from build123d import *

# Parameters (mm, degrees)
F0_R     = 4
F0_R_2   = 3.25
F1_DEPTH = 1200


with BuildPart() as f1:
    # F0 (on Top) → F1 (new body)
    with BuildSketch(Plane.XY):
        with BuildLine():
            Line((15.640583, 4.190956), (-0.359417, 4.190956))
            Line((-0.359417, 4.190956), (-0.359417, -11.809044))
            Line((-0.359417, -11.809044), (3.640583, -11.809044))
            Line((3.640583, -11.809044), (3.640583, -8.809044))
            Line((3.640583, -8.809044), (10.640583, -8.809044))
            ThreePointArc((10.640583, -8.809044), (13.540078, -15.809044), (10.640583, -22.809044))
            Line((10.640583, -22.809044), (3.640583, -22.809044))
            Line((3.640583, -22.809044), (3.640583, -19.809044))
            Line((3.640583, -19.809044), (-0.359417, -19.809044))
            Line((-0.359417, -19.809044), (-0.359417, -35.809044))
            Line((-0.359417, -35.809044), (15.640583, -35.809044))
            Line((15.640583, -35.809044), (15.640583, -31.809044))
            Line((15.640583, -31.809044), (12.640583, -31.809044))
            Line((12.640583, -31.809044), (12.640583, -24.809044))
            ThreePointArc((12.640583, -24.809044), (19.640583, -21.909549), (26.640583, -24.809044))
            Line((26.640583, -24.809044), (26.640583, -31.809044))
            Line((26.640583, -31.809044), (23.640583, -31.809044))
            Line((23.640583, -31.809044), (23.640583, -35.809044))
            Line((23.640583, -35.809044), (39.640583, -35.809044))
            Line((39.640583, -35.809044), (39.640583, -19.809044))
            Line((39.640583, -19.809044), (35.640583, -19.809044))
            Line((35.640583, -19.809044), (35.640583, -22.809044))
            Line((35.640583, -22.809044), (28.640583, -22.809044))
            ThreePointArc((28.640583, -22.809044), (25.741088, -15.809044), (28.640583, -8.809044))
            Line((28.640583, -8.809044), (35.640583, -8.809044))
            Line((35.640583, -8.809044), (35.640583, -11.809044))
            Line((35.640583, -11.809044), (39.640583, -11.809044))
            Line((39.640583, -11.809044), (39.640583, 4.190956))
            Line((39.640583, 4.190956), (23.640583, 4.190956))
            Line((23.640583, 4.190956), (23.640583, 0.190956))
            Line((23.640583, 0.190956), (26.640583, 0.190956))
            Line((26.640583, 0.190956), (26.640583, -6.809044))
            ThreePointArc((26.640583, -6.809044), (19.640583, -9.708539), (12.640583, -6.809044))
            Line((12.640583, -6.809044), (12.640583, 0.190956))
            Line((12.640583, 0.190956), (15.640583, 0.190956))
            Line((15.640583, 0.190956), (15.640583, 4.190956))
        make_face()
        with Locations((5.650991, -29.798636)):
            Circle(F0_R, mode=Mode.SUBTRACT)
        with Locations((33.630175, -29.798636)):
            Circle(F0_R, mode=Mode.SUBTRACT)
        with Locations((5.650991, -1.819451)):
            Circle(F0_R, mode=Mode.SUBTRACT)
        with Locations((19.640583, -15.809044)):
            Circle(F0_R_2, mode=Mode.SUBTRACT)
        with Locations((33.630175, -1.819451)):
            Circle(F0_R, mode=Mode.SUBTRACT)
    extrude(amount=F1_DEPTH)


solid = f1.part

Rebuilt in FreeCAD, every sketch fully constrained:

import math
import FreeCAD as App
import Part
import Sketcher
Q = App.Units.Quantity

doc = App.newDocument("Part")
params = doc.addObject("Spreadsheet::Sheet", "Params")
for row, (alias, value) in enumerate([
    ("sketch1_diameter", "8 mm"),
    ("sketch1_diameter2", "6.5 mm"),
    ("sketch1_width", "16 mm"),
    ("sketch1_width2", "4 mm"),
    ("sketch1_width3", "7 mm"),
    ("pad1_length", "1200 mm"),
], start=1):
    params.set(f"A{row}", alias)
    params.set(f"B{row}", "=" + value)
    params.setAlias(f"B{row}", alias)

body = doc.addObject("PartDesign::Body", "Body")

sketch1 = doc.addObject("Sketcher::SketchObject", "Sketch")
body.addObject(sketch1)
sketch1.AttachmentSupport = (doc.XY_Plane, [""])
sketch1.MapMode = "FlatFace"
sketch1.addGeometry(Part.LineSegment(App.Vector(15.6, 4.2, 0), App.Vector(-0.4, 4.2, 0)), False)
sketch1.addGeometry(Part.LineSegment(App.Vector(-0.4, 4.2, 0), App.Vector(-0.4, -11.8, 0)), False)
sketch1.addGeometry(Part.LineSegment(App.Vector(-0.4, -11.8, 0), App.Vector(3.6, -11.8, 0)), False)
sketch1.addGeometry(Part.LineSegment(App.Vector(3.6, -11.8, 0), App.Vector(3.6, -8.8, 0)), False)
sketch1.addGeometry(Part.LineSegment(App.Vector(3.6, -8.8, 0), App.Vector(10.6, -8.8, 0)), False)
sketch1.addGeometry(Part.ArcOfCircle(Part.Circle(App.Vector(3.6, -15.8, 0), App.Vector(0, 0, 1), 9.9), math.radians(-45), math.radians(45)), False)
sketch1.addGeometry(Part.LineSegment(App.Vector(10.6, -22.8, 0), App.Vector(3.6, -22.8, 0)), False)
sketch1.addGeometry(Part.LineSegment(App.Vector(3.6, -22.8, 0), App.Vector(3.6, -19.8, 0)), False)
sketch1.addGeometry(Part.LineSegment(App.Vector(3.6, -19.8, 0), App.Vector(-0.4, -19.8, 0)), False)
sketch1.addGeometry(Part.LineSegment(App.Vector(-0.4, -19.8, 0), App.Vector(-0.4, -35.8, 0)), False)
sketch1.addGeometry(Part.LineSegment(App.Vector(-0.4, -35.8, 0), App.Vector(15.6, -35.8, 0)), False)
sketch1.addGeometry(Part.LineSegment(App.Vector(15.6, -35.8, 0), App.Vector(15.6, -31.8, 0)), False)
sketch1.addGeometry(Part.LineSegment(App.Vector(15.6, -31.8, 0), App.Vector(12.6, -31.8, 0)), False)
sketch1.addGeometry(Part.LineSegment(App.Vector(12.6, -31.8, 0), App.Vector(12.6, -24.8, 0)), False)
sketch1.addGeometry(Part.ArcOfCircle(Part.Circle(App.Vector(19.6, -31.8, 0), App.Vector(0, 0, 1), 9.9), math.radians(45), math.radians(135)), False)
sketch1.addGeometry(Part.LineSegment(App.Vector(26.6, -24.8, 0), App.Vector(26.6, -31.8, 0)), False)
sketch1.addGeometry(Part.LineSegment(App.Vector(26.6, -31.8, 0), App.Vector(23.6, -31.8, 0)), False)
sketch1.addGeometry(Part.LineSegment(App.Vector(23.6, -31.8, 0), App.Vector(23.6, -35.8, 0)), False)
sketch1.addGeometry(Part.LineSegment(App.Vector(23.6, -35.8, 0), App.Vector(39.6, -35.8, 0)), False)
sketch1.addGeometry(Part.LineSegment(App.Vector(39.6, -35.8, 0), App.Vector(39.6, -19.8, 0)), False)
sketch1.addGeometry(Part.LineSegment(App.Vector(39.6, -19.8, 0), App.Vector(35.6, -19.8, 0)), False)
sketch1.addGeometry(Part.LineSegment(App.Vector(35.6, -19.8, 0), App.Vector(35.6, -22.8, 0)), False)
sketch1.addGeometry(Part.LineSegment(App.Vector(35.6, -22.8, 0), App.Vector(28.6, -22.8, 0)), False)
sketch1.addGeometry(Part.ArcOfCircle(Part.Circle(App.Vector(35.6, -15.8, 0), App.Vector(0, 0, 1), 9.9), math.radians(135), math.radians(225)), False)
sketch1.addGeometry(Part.LineSegment(App.Vector(28.6, -8.8, 0), App.Vector(35.6, -8.8, 0)), False)
sketch1.addGeometry(Part.LineSegment(App.Vector(35.6, -8.8, 0), App.Vector(35.6, -11.8, 0)), False)
sketch1.addGeometry(Part.LineSegment(App.Vector(35.6, -11.8, 0), App.Vector(39.6, -11.8, 0)), False)
sketch1.addGeometry(Part.LineSegment(App.Vector(39.6, -11.8, 0), App.Vector(39.6, 4.2, 0)), False)
sketch1.addGeometry(Part.LineSegment(App.Vector(39.6, 4.2, 0), App.Vector(23.6, 4.2, 0)), False)
sketch1.addGeometry(Part.LineSegment(App.Vector(23.6, 4.2, 0), App.Vector(23.6, 0.2, 0)), False)
sketch1.addGeometry(Part.LineSegment(App.Vector(23.6, 0.2, 0), App.Vector(26.6, 0.2, 0)), False)
sketch1.addGeometry(Part.LineSegment(App.Vector(26.6, 0.2, 0), App.Vector(26.6, -6.8, 0)), False)
sketch1.addGeometry(Part.ArcOfCircle(Part.Circle(App.Vector(19.6, 0.2, 0), App.Vector(0, 0, 1), 9.9), math.radians(-135), math.radians(-45)), False)
sketch1.addGeometry(Part.LineSegment(App.Vector(12.6, -6.8, 0), App.Vector(12.6, 0.2, 0)), False)
sketch1.addGeometry(Part.LineSegment(App.Vector(12.6, 0.2, 0), App.Vector(15.6, 0.2, 0)), False)
sketch1.addGeometry(Part.LineSegment(App.Vector(15.6, 0.2, 0), App.Vector(15.6, 4.2, 0)), False)
sketch1.addGeometry(Part.Circle(App.Vector(5.7, -29.8, 0), App.Vector(0, 0, 1), 4), False)
sketch1.addGeometry(Part.Circle(App.Vector(19.6, -15.8, 0), App.Vector(0, 0, 1), 3.2), False)
sketch1.addGeometry(Part.Circle(App.Vector(33.6, -29.8, 0), App.Vector(0, 0, 1), 4), False)
sketch1.addGeometry(Part.Circle(App.Vector(5.7, -1.8, 0), App.Vector(0, 0, 1), 4), False)
sketch1.addGeometry(Part.Circle(App.Vector(33.6, -1.8, 0), App.Vector(0, 0, 1), 4), False)
sketch1.addConstraint(Sketcher.Constraint("Coincident", 0, 2, 1, 1))
sketch1.addConstraint(Sketcher.Constraint("Coincident", 1, 2, 2, 1))
sketch1.addConstraint(Sketcher.Constraint("Coincident", 2, 2, 3, 1))
sketch1.addConstraint(Sketcher.Constraint("Coincident", 3, 2, 4, 1))
sketch1.addConstraint(Sketcher.Constraint("Coincident", 4, 2, 5, 2))
sketch1.addConstraint(Sketcher.Constraint("Coincident", 5, 1, 6, 1))
sketch1.addConstraint(Sketcher.Constraint("Coincident", 6, 2, 7, 1))
sketch1.addConstraint(Sketcher.Constraint("Coincident", 7, 2, 8, 1))
sketch1.addConstraint(Sketcher.Constraint("Coincident", 8, 2, 9, 1))
sketch1.addConstraint(Sketcher.Constraint("Coincident", 9, 2, 10, 1))
sketch1.addConstraint(Sketcher.Constraint("Coincident", 10, 2, 11, 1))
sketch1.addConstraint(Sketcher.Constraint("Coincident", 11, 2, 12, 1))
sketch1.addConstraint(Sketcher.Constraint("Coincident", 12, 2, 13, 1))
sketch1.addConstraint(Sketcher.Constraint("Coincident", 13, 2, 14, 2))
sketch1.addConstraint(Sketcher.Constraint("Coincident", 14, 1, 15, 1))
sketch1.addConstraint(Sketcher.Constraint("Coincident", 15, 2, 16, 1))
sketch1.addConstraint(Sketcher.Constraint("Coincident", 16, 2, 17, 1))
sketch1.addConstraint(Sketcher.Constraint("Coincident", 17, 2, 18, 1))
sketch1.addConstraint(Sketcher.Constraint("Coincident", 18, 2, 19, 1))
sketch1.addConstraint(Sketcher.Constraint("Coincident", 19, 2, 20, 1))
sketch1.addConstraint(Sketcher.Constraint("Coincident", 20, 2, 21, 1))
sketch1.addConstraint(Sketcher.Constraint("Coincident", 21, 2, 22, 1))
sketch1.addConstraint(Sketcher.Constraint("Coincident", 22, 2, 23, 2))
sketch1.addConstraint(Sketcher.Constraint("Coincident", 23, 1, 24, 1))
sketch1.addConstraint(Sketcher.Constraint("Coincident", 24, 2, 25, 1))
sketch1.addConstraint(Sketcher.Constraint("Coincident", 25, 2, 26, 1))
sketch1.addConstraint(Sketcher.Constraint("Coincident", 26, 2, 27, 1))
sketch1.addConstraint(Sketcher.Constraint("Coincident", 27, 2, 28, 1))
sketch1.addConstraint(Sketcher.Constraint("Coincident", 28, 2, 29, 1))
sketch1.addConstraint(Sketcher.Constraint("Coincident", 29, 2, 30, 1))
sketch1.addConstraint(Sketcher.Constraint("Coincident", 30, 2, 31, 1))
sketch1.addConstraint(Sketcher.Constraint("Coincident", 31, 2, 32, 2))
sketch1.addConstraint(Sketcher.Constraint("Coincident", 32, 1, 33, 1))
sketch1.addConstraint(Sketcher.Constraint("Coincident", 33, 2, 34, 1))
sketch1.addConstraint(Sketcher.Constraint("Coincident", 34, 2, 35, 1))
sketch1.addConstraint(Sketcher.Constraint("Coincident", 35, 2, 0, 1))
sketch1.addConstraint(Sketcher.Constraint("Horizontal", 0))
sketch1.addConstraint(Sketcher.Constraint("Vertical", 1))
sketch1.addConstraint(Sketcher.Constraint("Horizontal", 2))
sketch1.addConstraint(Sketcher.Constraint("Vertical", 3))
sketch1.addConstraint(Sketcher.Constraint("Horizontal", 4))
sketch1.addConstraint(Sketcher.Constraint("Horizontal", 6))
sketch1.addConstraint(Sketcher.Constraint("Vertical", 7))
sketch1.addConstraint(Sketcher.Constraint("Horizontal", 8))
sketch1.addConstraint(Sketcher.Constraint("Vertical", 9))
sketch1.addConstraint(Sketcher.Constraint("Horizontal", 10))
sketch1.addConstraint(Sketcher.Constraint("Vertical", 11))
sketch1.addConstraint(Sketcher.Constraint("Horizontal", 12))
sketch1.addConstraint(Sketcher.Constraint("Vertical", 13))
sketch1.addConstraint(Sketcher.Constraint("Vertical", 15))
sketch1.addConstraint(Sketcher.Constraint("Horizontal", 16))
sketch1.addConstraint(Sketcher.Constraint("Vertical", 17))
sketch1.addConstraint(Sketcher.Constraint("Horizontal", 18))
sketch1.addConstraint(Sketcher.Constraint("Vertical", 19))
sketch1.addConstraint(Sketcher.Constraint("Horizontal", 20))
sketch1.addConstraint(Sketcher.Constraint("Vertical", 21))
sketch1.addConstraint(Sketcher.Constraint("Horizontal", 22))
sketch1.addConstraint(Sketcher.Constraint("Horizontal", 24))
sketch1.addConstraint(Sketcher.Constraint("Vertical", 25))
sketch1.addConstraint(Sketcher.Constraint("Horizontal", 26))
sketch1.addConstraint(Sketcher.Constraint("Vertical", 27))
sketch1.addConstraint(Sketcher.Constraint("Horizontal", 28))
sketch1.addConstraint(Sketcher.Constraint("Vertical", 29))
sketch1.addConstraint(Sketcher.Constraint("Horizontal", 30))
sketch1.addConstraint(Sketcher.Constraint("Vertical", 31))
sketch1.addConstraint(Sketcher.Constraint("Vertical", 33))
sketch1.addConstraint(Sketcher.Constraint("Horizontal", 34))
sketch1.addConstraint(Sketcher.Constraint("Vertical", 35))
sketch1.addConstraint(Sketcher.Constraint("Equal", 5, 14))
sketch1.addConstraint(Sketcher.Constraint("Equal", 14, 23))
sketch1.addConstraint(Sketcher.Constraint("Equal", 23, 32))
sketch1.addConstraint(Sketcher.Constraint("Equal", 36, 38))
sketch1.addConstraint(Sketcher.Constraint("Equal", 38, 39))
sketch1.addConstraint(Sketcher.Constraint("Equal", 39, 40))
sketch1.addConstraint(Sketcher.Constraint("Horizontal", 5, 3, 23, 3))
sketch1.addConstraint(Sketcher.Constraint("Horizontal", 23, 3, 37, 3))
sketch1.addConstraint(Sketcher.Constraint("Horizontal", 36, 3, 38, 3))
sketch1.addConstraint(Sketcher.Constraint("Horizontal", 39, 3, 40, 3))
sketch1.addConstraint(Sketcher.Constraint("Horizontal", 14, 3, 11, 2))
sketch1.addConstraint(Sketcher.Constraint("Horizontal", 13, 2, 14, 1))
sketch1.addConstraint(Sketcher.Constraint("Horizontal", 12, 2, 15, 2))
sketch1.addConstraint(Sketcher.Constraint("Horizontal", 10, 2, 17, 2))
sketch1.addConstraint(Sketcher.Constraint("Horizontal", 8, 2, 19, 2))
sketch1.addConstraint(Sketcher.Constraint("Horizontal", 6, 2, 21, 2))
sketch1.addConstraint(Sketcher.Constraint("Horizontal", 4, 2, 23, 1))
sketch1.addConstraint(Sketcher.Constraint("Horizontal", 2, 2, 25, 2))
sketch1.addConstraint(Sketcher.Constraint("Horizontal", 0, 2, 27, 2))
sketch1.addConstraint(Sketcher.Constraint("Horizontal", 32, 3, 29, 2))
sketch1.addConstraint(Sketcher.Constraint("Horizontal", 31, 2, 32, 1))
sketch1.addConstraint(Sketcher.Constraint("Horizontal", 30, 2, 33, 2))
sketch1.addConstraint(Sketcher.Constraint("Vertical", 14, 3, 32, 3))
sketch1.addConstraint(Sketcher.Constraint("Vertical", 32, 3, 37, 3))
sketch1.addConstraint(Sketcher.Constraint("Vertical", 36, 3, 39, 3))
sketch1.addConstraint(Sketcher.Constraint("Vertical", 38, 3, 40, 3))
sketch1.addConstraint(Sketcher.Constraint("Vertical", 5, 3, 2, 2))
sketch1.addConstraint(Sketcher.Constraint("Vertical", 4, 2, 5, 1))
sketch1.addConstraint(Sketcher.Constraint("Vertical", 3, 2, 6, 2))
sketch1.addConstraint(Sketcher.Constraint("Vertical", 1, 2, 8, 2))
sketch1.addConstraint(Sketcher.Constraint("Vertical", 23, 3, 20, 2))
sketch1.addConstraint(Sketcher.Constraint("Vertical", 21, 2, 24, 2))
sketch1.addConstraint(Sketcher.Constraint("Vertical", 19, 2, 26, 2))
sketch1.addConstraint(Sketcher.Constraint("Vertical", 17, 2, 28, 2))
sketch1.addConstraint(Sketcher.Constraint("Vertical", 15, 2, 30, 2))
sketch1.addConstraint(Sketcher.Constraint("Vertical", 11, 2, 34, 2))
sketch1.addConstraint(Sketcher.Constraint("Equal", 12, 16))
sketch1.addConstraint(Sketcher.Constraint("Equal", 10, 18))
sketch1.addConstraint(Sketcher.Constraint("Equal", 8, 20))
sketch1.addConstraint(Sketcher.Constraint("Equal", 28, 1))
sketch1.addConstraint(Sketcher.Constraint("Equal", 34, 3))
sketch1.addConstraint(Sketcher.Constraint("Equal", 3, 7))
sketch1.addConstraint(Sketcher.Constraint("Equal", 1, 9))
sketch1.addConstraint(Sketcher.Constraint("Equal", 26, 11))
sketch1.addConstraint(Sketcher.Constraint("Equal", 24, 13))
sketch1.addConstraint(Sketcher.Constraint("Equal", 17, 29))
sketch1.addConstraint(Sketcher.Constraint("Diameter", 36, Q("8 mm")))
sketch1.addConstraint(Sketcher.Constraint("Diameter", 37, Q("6.5 mm")))
sketch1.addConstraint(Sketcher.Constraint("DistanceX", 0, 2, 0, 1, Q("16 mm")))
sketch1.addConstraint(Sketcher.Constraint("DistanceX", 2, 1, 2, 2, Q("4 mm")))
sketch1.addConstraint(Sketcher.Constraint("DistanceX", 4, 1, 4, 2, Q("7 mm")))
sketch1.addConstraint(Sketcher.Constraint("DistanceX", 12, 2, 12, 1, Q("3 mm")))
sketch1.addConstraint(Sketcher.Constraint("DistanceX", 5, 3, 14, 3, Q("16 mm")))
sketch1.addConstraint(Sketcher.Constraint("DistanceX", -1, 1, 36, 3, Q("5.650991 mm")))
sketch1.addConstraint(Sketcher.Constraint("DistanceY", 39, 3, -1, 1, Q("1.819451 mm")))
sketch1.addConstraint(Sketcher.Constraint("DistanceY", 36, 3, 5, 3, Q("13.989592 mm")))
sketch1.addConstraint(Sketcher.Constraint("DistanceX", 36, 3, 14, 3, Q("13.989592 mm")))
sketch1.addConstraint(Sketcher.Constraint("DistanceX", 14, 1, 38, 3, Q("6.989592 mm")))
sketch1.addConstraint(Sketcher.Constraint("DistanceY", 5, 3, -1, 1, Q("15.809044 mm")))
sketch1.setExpression("Constraints[114]", "Params.sketch1_diameter")
sketch1.setExpression("Constraints[115]", "Params.sketch1_diameter2")
sketch1.setExpression("Constraints[116]", "Params.sketch1_width")
sketch1.setExpression("Constraints[117]", "Params.sketch1_width2")
sketch1.setExpression("Constraints[118]", "Params.sketch1_width3")
pad1 = doc.addObject("PartDesign::Pad", "Pad")
body.addObject(pad1)
pad1.Profile = sketch1
pad1.setExpression("Length", "Params.pad1_length")

doc.recompute()
